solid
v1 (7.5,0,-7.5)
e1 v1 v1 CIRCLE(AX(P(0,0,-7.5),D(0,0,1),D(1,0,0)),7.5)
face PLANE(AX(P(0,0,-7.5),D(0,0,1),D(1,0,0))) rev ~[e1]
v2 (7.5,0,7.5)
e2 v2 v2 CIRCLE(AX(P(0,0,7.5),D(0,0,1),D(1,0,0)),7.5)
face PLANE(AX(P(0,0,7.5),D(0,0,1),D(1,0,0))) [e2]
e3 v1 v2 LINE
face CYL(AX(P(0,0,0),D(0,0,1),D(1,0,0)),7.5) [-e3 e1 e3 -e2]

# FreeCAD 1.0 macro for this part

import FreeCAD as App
import Part
import Sketcher

V = App.Vector
Q = App.Units.Quantity

doc = App.newDocument("Part")
body = doc.addObject("PartDesign::Body", "Body")

# Sketch on XY plane
sketch1 = body.newObject("Sketcher::SketchObject", "Sketch")
sketch1.AttachmentSupport = (doc.getObject("XY_Plane"), [""])
sketch1.MapMode = "FlatFace"
sketch1.addGeometry(Part.Circle(V(0, 0, 0), V(0, 0, 1), 8), False)
sketch1.addConstraint([
    Sketcher.Constraint("Coincident", 0, 3, -1, 1),
    Sketcher.Constraint("Diameter", 0, Q("15 mm")),
])
pad1 = body.newObject("PartDesign::Pad", "Pad")
pad1.Profile = sketch1
pad1.Length = 15
pad1.Midplane = True

doc.recompute()
